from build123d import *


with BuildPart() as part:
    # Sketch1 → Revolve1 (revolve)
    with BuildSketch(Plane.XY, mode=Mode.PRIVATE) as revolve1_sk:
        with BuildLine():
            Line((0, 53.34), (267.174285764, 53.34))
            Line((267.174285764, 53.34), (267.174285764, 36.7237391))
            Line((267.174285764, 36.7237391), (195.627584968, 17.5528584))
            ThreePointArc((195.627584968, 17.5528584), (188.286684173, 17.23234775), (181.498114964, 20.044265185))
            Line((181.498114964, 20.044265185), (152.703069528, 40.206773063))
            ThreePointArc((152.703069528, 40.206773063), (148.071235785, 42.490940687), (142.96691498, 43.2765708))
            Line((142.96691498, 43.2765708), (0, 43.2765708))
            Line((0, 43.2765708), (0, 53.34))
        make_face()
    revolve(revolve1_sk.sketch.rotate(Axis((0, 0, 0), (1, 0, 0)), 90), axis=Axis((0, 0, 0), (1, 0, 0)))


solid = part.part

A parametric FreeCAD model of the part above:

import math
import FreeCAD as App
import Part
import Sketcher
from FreeCAD import Vector
Q = App.Units.Quantity

doc = App.newDocument("Part")
body = doc.addObject("PartDesign::Body", "Body")

# Sketch on XY plane
sketch1 = body.newObject("Sketcher::SketchObject", "Sketch")
sketch1.AttachmentSupport = (doc.getObject("XY_Plane"), [""])
sketch1.MapMode = "FlatFace"
sketch1.addGeometry(Part.LineSegment(Vector(267, 53, 0), Vector(0, 53, 0)), False)
sketch1.addGeometry(Part.LineSegment(Vector(0, 53, 0), Vector(0, 43, 0)), False)
sketch1.addGeometry(Part.LineSegment(Vector(0, 43, 0), Vector(143, 43, 0)), False)
sketch1.addGeometry(Part.ArcOfCircle(Part.Circle(Vector(143, 26, 0), Vector(0, 0, 1), 17), math.radians(55), math.radians(90)), False)
sketch1.addGeometry(Part.LineSegment(Vector(153, 40, 0), Vector(181, 20, 0)), False)
sketch1.addGeometry(Part.ArcOfCircle(Part.Circle(Vector(191, 34, 0), Vector(0, 0, 1), 17), math.radians(-125), math.radians(-75)), False)
sketch1.addGeometry(Part.LineSegment(Vector(196, 18, 0), Vector(267, 37, 0)), False)
sketch1.addGeometry(Part.LineSegment(Vector(267, 37, 0), Vector(267, 53, 0)), False)
sketch1.addConstraint(Sketcher.Constraint("Coincident", 0, 2, 1, 1))
sketch1.addConstraint(Sketcher.Constraint("Coincident", 1, 2, 2, 1))
sketch1.addConstraint(Sketcher.Constraint("Tangent", 2, 2, 3, 2))
sketch1.addConstraint(Sketcher.Constraint("Tangent", 3, 1, 4, 1))
sketch1.addConstraint(Sketcher.Constraint("Tangent", 4, 2, 5, 1))
sketch1.addConstraint(Sketcher.Constraint("Tangent", 5, 2, 6, 1))
sketch1.addConstraint(Sketcher.Constraint("Coincident", 6, 2, 7, 1))
sketch1.addConstraint(Sketcher.Constraint("Coincident", 7, 2, 0, 1))
sketch1.addConstraint(Sketcher.Constraint("Horizontal", 0))
sketch1.addConstraint(Sketcher.Constraint("Vertical", 1))
sketch1.addConstraint(Sketcher.Constraint("Horizontal", 2))
sketch1.addConstraint(Sketcher.Constraint("Vertical", 7))
sketch1.addConstraint(Sketcher.Constraint("Equal", 3, 5))
sketch1.addConstraint(Sketcher.Constraint("PointOnObject", 0, 2, -2))
sketch1.addConstraint(Sketcher.Constraint("Angle", 4, Q("-35 deg")))
sketch1.addConstraint(Sketcher.Constraint("Angle", 6, Q("15 deg")))
sketch1.addConstraint(Sketcher.Constraint("DistanceY", -1, 1, 0, 2, Q("53.34 mm")))
sketch1.addConstraint(Sketcher.Constraint("Radius", 3, Q("16.974467 mm")))
sketch1.addConstraint(Sketcher.Constraint("DistanceY", 1, 2, 1, 1, Q("10.063429 mm")))
sketch1.addConstraint(Sketcher.Constraint("DistanceY", 7, 1, 7, 2, Q("16.616261 mm")))
sketch1.addConstraint(Sketcher.Constraint("DistanceX", 3, 1, 5, 3, Q("38.5312 mm")))
sketch1.addConstraint(Sketcher.Constraint("DistanceX", 0, 2, 0, 1, Q("267.174286 mm")))
revolution = body.newObject("PartDesign::Revolution", "Revolution")
revolution.Profile = sketch1
revolution.ReferenceAxis = (sketch1, ["H_Axis"])
revolution.Angle = 360

doc.recompute()
